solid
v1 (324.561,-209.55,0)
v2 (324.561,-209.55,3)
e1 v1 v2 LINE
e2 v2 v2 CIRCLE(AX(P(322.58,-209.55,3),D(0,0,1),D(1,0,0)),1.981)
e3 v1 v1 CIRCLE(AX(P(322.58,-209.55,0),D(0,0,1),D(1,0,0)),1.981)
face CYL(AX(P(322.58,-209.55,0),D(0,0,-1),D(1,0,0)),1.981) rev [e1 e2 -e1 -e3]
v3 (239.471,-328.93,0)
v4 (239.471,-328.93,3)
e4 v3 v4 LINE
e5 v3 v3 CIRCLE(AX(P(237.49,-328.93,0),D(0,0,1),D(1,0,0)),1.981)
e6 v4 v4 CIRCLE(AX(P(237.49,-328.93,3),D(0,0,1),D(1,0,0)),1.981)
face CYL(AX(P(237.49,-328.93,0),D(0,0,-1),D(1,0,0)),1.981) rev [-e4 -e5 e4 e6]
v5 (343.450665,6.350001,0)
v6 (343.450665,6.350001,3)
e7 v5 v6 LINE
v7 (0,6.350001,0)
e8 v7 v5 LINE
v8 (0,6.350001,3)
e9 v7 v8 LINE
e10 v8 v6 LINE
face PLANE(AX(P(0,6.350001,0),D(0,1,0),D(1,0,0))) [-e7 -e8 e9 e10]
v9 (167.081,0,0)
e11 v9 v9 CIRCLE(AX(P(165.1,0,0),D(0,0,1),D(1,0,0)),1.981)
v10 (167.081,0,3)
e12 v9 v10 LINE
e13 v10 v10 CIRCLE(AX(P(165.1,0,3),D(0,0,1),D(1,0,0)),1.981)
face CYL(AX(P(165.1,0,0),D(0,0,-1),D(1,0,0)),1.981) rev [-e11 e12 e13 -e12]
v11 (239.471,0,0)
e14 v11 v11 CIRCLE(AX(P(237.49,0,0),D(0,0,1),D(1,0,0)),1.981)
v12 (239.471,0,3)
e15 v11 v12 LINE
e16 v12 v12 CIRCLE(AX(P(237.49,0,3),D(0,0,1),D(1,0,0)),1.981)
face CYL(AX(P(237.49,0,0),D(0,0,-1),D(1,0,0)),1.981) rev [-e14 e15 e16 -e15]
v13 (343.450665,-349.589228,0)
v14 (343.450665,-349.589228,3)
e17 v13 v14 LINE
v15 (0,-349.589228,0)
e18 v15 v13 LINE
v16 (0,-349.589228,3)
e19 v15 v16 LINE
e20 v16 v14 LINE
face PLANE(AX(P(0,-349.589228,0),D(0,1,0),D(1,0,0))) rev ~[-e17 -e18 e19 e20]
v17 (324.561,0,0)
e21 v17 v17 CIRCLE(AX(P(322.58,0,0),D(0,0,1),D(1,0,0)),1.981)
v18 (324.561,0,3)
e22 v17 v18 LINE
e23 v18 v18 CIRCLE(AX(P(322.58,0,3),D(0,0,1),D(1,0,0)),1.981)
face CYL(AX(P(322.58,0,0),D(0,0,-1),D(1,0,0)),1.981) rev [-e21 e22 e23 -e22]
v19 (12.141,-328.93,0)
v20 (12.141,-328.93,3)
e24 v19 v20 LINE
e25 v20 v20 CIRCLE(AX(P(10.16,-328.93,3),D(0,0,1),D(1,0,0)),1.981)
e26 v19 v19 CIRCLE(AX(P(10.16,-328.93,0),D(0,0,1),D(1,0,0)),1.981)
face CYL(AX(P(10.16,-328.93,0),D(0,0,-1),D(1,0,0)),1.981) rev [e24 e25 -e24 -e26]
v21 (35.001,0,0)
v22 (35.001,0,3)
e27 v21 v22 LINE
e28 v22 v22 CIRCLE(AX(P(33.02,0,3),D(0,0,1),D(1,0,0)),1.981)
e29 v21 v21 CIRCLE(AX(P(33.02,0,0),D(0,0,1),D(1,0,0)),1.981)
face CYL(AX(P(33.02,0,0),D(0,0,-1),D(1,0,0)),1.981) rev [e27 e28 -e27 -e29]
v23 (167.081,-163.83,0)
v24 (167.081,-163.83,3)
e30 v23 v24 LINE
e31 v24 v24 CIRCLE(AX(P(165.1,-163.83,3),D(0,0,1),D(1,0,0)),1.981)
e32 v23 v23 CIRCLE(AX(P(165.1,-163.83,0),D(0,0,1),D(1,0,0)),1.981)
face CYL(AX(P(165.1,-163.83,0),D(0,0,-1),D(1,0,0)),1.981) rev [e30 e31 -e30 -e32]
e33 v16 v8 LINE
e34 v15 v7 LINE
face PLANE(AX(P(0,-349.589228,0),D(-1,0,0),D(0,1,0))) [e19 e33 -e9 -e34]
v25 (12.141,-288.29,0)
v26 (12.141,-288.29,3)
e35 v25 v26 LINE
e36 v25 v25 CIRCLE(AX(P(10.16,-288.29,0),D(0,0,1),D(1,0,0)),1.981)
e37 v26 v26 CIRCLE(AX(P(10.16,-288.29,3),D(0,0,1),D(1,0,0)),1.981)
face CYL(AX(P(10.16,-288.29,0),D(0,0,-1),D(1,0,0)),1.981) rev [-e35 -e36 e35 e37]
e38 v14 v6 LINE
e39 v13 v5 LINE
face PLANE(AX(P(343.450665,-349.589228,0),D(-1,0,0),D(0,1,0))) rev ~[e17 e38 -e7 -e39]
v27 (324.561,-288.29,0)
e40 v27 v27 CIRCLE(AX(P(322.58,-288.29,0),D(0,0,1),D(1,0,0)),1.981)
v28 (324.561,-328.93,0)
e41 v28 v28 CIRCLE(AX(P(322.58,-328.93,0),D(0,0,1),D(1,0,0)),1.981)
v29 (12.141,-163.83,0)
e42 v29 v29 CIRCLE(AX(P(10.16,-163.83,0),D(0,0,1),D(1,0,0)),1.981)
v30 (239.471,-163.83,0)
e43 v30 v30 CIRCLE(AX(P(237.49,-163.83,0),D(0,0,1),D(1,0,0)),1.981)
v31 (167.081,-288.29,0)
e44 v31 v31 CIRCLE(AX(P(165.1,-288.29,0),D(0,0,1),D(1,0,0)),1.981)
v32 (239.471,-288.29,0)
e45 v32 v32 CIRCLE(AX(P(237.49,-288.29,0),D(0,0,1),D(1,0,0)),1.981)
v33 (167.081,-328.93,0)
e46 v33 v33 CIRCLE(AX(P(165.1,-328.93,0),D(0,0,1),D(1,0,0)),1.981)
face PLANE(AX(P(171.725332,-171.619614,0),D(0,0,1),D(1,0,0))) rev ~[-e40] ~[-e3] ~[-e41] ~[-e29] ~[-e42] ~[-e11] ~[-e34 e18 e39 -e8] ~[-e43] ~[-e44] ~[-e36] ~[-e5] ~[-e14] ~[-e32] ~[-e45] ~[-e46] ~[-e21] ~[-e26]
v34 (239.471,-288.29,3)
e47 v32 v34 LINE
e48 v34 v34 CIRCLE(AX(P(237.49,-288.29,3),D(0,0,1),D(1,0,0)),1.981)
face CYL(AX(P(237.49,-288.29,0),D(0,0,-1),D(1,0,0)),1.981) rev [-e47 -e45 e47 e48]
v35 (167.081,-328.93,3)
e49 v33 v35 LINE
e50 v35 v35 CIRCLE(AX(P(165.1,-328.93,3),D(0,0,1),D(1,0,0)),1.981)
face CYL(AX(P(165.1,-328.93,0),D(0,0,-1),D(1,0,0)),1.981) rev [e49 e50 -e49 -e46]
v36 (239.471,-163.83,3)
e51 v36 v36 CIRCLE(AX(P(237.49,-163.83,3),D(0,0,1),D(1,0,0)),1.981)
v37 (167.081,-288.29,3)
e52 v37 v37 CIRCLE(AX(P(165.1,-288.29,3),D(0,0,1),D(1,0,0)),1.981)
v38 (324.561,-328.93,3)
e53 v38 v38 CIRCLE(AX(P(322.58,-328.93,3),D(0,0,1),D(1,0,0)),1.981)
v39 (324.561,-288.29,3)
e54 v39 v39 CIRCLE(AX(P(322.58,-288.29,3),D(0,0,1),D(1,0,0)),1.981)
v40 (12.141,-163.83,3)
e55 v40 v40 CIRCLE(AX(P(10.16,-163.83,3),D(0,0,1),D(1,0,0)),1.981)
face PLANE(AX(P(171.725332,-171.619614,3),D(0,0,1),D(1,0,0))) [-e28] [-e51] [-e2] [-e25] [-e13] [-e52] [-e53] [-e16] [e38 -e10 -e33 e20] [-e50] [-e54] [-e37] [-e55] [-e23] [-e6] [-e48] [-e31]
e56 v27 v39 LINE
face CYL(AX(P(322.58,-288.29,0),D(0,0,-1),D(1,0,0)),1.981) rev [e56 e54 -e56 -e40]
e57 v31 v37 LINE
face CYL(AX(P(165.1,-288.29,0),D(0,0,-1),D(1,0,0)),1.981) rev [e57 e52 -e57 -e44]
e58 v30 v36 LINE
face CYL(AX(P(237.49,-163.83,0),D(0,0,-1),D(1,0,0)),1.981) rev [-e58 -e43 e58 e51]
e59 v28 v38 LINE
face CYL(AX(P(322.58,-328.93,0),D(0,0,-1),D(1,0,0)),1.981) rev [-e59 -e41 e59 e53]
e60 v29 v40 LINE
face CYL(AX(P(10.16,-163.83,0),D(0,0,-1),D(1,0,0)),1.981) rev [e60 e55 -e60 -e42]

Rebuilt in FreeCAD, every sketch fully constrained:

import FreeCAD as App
import Part
import Sketcher
Q = App.Units.Quantity

doc = App.newDocument("Part")
body = doc.addObject("PartDesign::Body", "Body")

# Sketch on XY plane
sketch1 = doc.addObject("Sketcher::SketchObject", "Sketch")
body.addObject(sketch1)
sketch1.AttachmentSupport = (doc.XY_Plane, [""])
sketch1.MapMode = "FlatFace"
sketch1.addGeometry([
    Part.LineSegment(App.Vector(0, 6.350001, 0), App.Vector(0, -349.589228, 0)),  # 0
    Part.LineSegment(App.Vector(0, -349.589228, 0), App.Vector(343.450665, -349.589228, 0)),  # 1
    Part.LineSegment(App.Vector(343.450665, -349.589228, 0), App.Vector(343.450665, 6.350001, 0)),  # 2
    Part.LineSegment(App.Vector(343.450665, 6.350001, 0), App.Vector(0, 6.350001, 0)),  # 3
    Part.Circle(App.Vector(10.16, -328.93, 0), App.Vector(0, 0, 1), 1.981),  # 4
    Part.Circle(App.Vector(10.16, -288.29, 0), App.Vector(0, 0, 1), 1.981),  # 5
    Part.Circle(App.Vector(165.1, -328.93, 0), App.Vector(0, 0, 1), 1.981),  # 6
    Part.Circle(App.Vector(165.1, -288.29, 0), App.Vector(0, 0, 1), 1.981),  # 7
    Part.Circle(App.Vector(237.49, -328.93, 0), App.Vector(0, 0, 1), 1.981),  # 8
    Part.Circle(App.Vector(237.49, -288.29, 0), App.Vector(0, 0, 1), 1.981),  # 9
    Part.Circle(App.Vector(322.58, -328.93, 0), App.Vector(0, 0, 1), 1.981),  # 10
    Part.Circle(App.Vector(322.58, -288.29, 0), App.Vector(0, 0, 1), 1.981),  # 11
    Part.Circle(App.Vector(322.58, -209.55, 0), App.Vector(0, 0, 1), 1.981),  # 12
    Part.Circle(App.Vector(10.16, -163.83, 0), App.Vector(0, 0, 1), 1.981),  # 13
    Part.Circle(App.Vector(165.1, -163.83, 0), App.Vector(0, 0, 1), 1.981),  # 14
    Part.Circle(App.Vector(33.02, 0, 0), App.Vector(0, 0, 1), 1.981),  # 15
    Part.Circle(App.Vector(165.1, 0, 0), App.Vector(0, 0, 1), 1.981),  # 16
    Part.Circle(App.Vector(237.49, -163.83, 0), App.Vector(0, 0, 1), 1.981),  # 17
    Part.Circle(App.Vector(237.49, 0, 0), App.Vector(0, 0, 1), 1.981),  # 18
    Part.Circle(App.Vector(322.58, 0, 0), App.Vector(0, 0, 1), 1.981),  # 19
], False)
sketch1.addConstraint([
    Sketcher.Constraint("Coincident", 0, 2, 1, 1),
    Sketcher.Constraint("Coincident", 1, 2, 2, 1),
    Sketcher.Constraint("Coincident", 2, 2, 3, 1),
    Sketcher.Constraint("Coincident", 3, 2, 0, 1),
    Sketcher.Constraint("Vertical", 0),
    Sketcher.Constraint("Horizontal", 1),
    Sketcher.Constraint("Vertical", 2),
    Sketcher.Constraint("Horizontal", 3),
    Sketcher.Constraint("Equal", 4, 5),
    Sketcher.Constraint("Equal", 5, 6),
    Sketcher.Constraint("Equal", 6, 7),
    Sketcher.Constraint("Equal", 7, 8),
    Sketcher.Constraint("Equal", 8, 9),
    Sketcher.Constraint("Equal", 9, 10),
    Sketcher.Constraint("Equal", 10, 11),
    Sketcher.Constraint("Equal", 11, 12),
    Sketcher.Constraint("Equal", 12, 13),
    Sketcher.Constraint("Equal", 13, 14),
    Sketcher.Constraint("Equal", 14, 15),
    Sketcher.Constraint("Equal", 15, 16),
    Sketcher.Constraint("Equal", 16, 17),
    Sketcher.Constraint("Equal", 17, 18),
    Sketcher.Constraint("Equal", 18, 19),
    Sketcher.Constraint("PointOnObject", 15, 3, -1),
    Sketcher.Constraint("PointOnObject", 16, 3, -1),
    Sketcher.Constraint("PointOnObject", 18, 3, -1),
    Sketcher.Constraint("PointOnObject", 19, 3, -1),
    Sketcher.Constraint("PointOnObject", 0, 2, -2),
    Sketcher.Constraint("Horizontal", 4, 3, 6, 3),
    Sketcher.Constraint("Horizontal", 5, 3, 7, 3),
    Sketcher.Constraint("Horizontal", 6, 3, 8, 3),
    Sketcher.Constraint("Horizontal", 7, 3, 9, 3),
    Sketcher.Constraint("Horizontal", 8, 3, 10, 3),
    Sketcher.Constraint("Horizontal", 9, 3, 11, 3),
    Sketcher.Constraint("Horizontal", 13, 3, 14, 3),
    Sketcher.Constraint("Horizontal", 14, 3, 17, 3),
    Sketcher.Constraint("Vertical", 4, 3, 5, 3),
    Sketcher.Constraint("Vertical", 6, 3, 7, 3),
    Sketcher.Constraint("Vertical", 8, 3, 9, 3),
    Sketcher.Constraint("Vertical", 10, 3, 11, 3),
    Sketcher.Constraint("Vertical", 11, 3, 12, 3),
    Sketcher.Constraint("Vertical", 5, 3, 13, 3),
    Sketcher.Constraint("Vertical", 7, 3, 14, 3),
    Sketcher.Constraint("Vertical", 14, 3, 16, 3),
    Sketcher.Constraint("Vertical", 9, 3, 17, 3),
    Sketcher.Constraint("Vertical", 17, 3, 18, 3),
    Sketcher.Constraint("Vertical", 12, 3, 19, 3),
    Sketcher.Constraint("Diameter", 4, Q("3.962 mm")),
    Sketcher.Constraint("DistanceX", -1, 1, 6, 3, Q("165.1 mm")),
    Sketcher.Constraint("DistanceY", 4, 3, 13, 3, Q("165.1 mm")),
    Sketcher.Constraint("DistanceY", 12, 3, 2, 2, Q("215.900001 mm")),
    Sketcher.Constraint("DistanceX", -1, 1, 4, 3, Q("10.16 mm")),
    Sketcher.Constraint("DistanceY", 4, 3, -1, 1, Q("328.93 mm")),
    Sketcher.Constraint("DistanceY", 5, 3, -1, 1, Q("288.29 mm")),
    Sketcher.Constraint("DistanceX", -1, 1, 8, 3, Q("237.49 mm")),
    Sketcher.Constraint("DistanceX", -1, 1, 10, 3, Q("322.58 mm")),
    Sketcher.Constraint("DistanceY", 12, 3, -1, 1, Q("209.55 mm")),
    Sketcher.Constraint("DistanceX", -1, 1, 15, 3, Q("33.02 mm")),
    Sketcher.Constraint("DistanceY", 0, 2, 0, 1, Q("355.939229 mm")),
    Sketcher.Constraint("DistanceX", 1, 1, 1, 2, Q("343.450665 mm")),
])
pad1 = doc.addObject("PartDesign::Pad", "Pad")
body.addObject(pad1)
pad1.Profile = sketch1
pad1.Length = 3

doc.recompute()
